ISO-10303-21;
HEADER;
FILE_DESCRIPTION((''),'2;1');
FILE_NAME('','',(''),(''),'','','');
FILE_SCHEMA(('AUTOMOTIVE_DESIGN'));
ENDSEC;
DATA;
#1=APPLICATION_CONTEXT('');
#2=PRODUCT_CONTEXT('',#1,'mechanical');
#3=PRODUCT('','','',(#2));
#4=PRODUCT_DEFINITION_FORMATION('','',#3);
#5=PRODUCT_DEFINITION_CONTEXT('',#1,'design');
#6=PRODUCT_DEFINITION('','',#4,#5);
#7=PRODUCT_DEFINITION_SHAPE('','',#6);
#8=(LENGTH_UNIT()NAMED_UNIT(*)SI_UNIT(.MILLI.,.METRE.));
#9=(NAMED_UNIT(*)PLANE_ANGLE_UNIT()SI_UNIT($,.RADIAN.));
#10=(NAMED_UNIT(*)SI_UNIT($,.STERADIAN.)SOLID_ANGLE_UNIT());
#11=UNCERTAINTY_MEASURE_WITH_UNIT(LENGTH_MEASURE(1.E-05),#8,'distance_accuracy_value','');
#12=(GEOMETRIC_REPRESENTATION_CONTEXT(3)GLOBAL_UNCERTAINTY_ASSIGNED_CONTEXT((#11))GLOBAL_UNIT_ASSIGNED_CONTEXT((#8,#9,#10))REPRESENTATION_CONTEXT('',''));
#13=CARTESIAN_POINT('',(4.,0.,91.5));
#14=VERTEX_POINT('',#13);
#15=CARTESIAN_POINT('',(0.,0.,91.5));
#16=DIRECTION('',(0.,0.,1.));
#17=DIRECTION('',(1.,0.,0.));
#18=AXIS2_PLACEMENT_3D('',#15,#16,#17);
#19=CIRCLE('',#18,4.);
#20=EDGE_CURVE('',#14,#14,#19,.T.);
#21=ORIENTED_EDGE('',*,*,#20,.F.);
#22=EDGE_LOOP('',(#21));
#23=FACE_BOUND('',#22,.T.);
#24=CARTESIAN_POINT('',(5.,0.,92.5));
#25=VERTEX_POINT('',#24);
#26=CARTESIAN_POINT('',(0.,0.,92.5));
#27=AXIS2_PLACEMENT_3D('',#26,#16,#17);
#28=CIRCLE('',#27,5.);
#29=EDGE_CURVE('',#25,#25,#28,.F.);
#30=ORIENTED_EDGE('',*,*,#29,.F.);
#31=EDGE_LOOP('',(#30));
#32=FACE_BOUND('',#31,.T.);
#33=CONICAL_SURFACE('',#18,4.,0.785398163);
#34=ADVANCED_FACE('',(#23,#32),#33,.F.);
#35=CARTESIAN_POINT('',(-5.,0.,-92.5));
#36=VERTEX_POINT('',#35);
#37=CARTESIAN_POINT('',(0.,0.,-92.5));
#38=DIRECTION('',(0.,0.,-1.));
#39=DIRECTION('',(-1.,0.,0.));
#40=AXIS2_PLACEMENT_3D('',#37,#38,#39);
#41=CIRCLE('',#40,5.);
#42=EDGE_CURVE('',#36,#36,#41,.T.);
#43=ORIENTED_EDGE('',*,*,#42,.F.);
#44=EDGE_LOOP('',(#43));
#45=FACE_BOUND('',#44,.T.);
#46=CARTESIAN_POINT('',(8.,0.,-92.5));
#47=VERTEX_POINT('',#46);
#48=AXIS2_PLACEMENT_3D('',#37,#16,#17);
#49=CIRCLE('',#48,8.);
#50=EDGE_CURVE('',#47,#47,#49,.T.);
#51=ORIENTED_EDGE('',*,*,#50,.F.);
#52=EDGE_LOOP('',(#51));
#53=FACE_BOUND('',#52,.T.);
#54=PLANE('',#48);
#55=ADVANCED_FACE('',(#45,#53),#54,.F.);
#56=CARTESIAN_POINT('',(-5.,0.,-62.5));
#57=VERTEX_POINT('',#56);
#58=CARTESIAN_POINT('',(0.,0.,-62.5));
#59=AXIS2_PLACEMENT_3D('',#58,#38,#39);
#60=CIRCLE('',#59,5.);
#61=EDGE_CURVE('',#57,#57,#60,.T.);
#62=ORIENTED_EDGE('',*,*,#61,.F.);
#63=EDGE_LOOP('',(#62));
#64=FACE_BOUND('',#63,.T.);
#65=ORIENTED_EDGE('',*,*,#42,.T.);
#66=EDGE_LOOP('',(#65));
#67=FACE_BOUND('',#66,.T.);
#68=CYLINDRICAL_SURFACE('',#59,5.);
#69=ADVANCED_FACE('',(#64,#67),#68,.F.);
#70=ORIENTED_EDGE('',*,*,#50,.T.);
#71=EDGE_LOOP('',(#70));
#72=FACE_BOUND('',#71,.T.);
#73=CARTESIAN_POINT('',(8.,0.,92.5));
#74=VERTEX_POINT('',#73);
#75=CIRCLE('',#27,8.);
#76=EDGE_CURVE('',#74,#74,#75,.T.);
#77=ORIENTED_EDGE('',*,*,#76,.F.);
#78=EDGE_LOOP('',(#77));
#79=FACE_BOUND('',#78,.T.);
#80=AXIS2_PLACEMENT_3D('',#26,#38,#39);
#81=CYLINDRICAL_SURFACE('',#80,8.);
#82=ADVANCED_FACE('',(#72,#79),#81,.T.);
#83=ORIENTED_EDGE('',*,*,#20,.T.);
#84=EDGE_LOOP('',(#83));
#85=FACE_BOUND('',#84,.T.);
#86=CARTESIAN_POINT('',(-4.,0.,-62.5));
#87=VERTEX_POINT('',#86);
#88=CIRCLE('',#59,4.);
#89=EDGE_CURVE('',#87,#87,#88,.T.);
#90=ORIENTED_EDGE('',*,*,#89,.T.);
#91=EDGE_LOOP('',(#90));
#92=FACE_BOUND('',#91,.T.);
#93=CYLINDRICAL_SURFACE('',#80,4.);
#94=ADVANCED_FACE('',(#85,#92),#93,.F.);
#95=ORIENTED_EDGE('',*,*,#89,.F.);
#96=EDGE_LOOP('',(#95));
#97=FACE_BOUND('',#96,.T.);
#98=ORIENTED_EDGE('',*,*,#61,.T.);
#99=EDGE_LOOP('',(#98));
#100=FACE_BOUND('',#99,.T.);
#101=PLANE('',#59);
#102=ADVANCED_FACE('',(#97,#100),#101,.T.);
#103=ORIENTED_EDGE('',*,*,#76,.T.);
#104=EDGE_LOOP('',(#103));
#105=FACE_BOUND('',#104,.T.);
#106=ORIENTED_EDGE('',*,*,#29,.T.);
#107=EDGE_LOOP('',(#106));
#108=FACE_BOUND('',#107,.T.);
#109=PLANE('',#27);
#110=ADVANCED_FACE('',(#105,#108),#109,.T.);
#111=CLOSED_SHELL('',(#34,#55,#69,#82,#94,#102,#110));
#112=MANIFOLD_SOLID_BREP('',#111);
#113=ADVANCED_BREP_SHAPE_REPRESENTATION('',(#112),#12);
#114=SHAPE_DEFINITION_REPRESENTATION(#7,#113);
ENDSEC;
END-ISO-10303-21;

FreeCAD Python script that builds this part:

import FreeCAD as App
import Part
import Sketcher

V = App.Vector
Q = App.Units.Quantity


def edges_at(feature, points):
    """Names of the edges that pass closest to the given points."""
    edges = feature.Shape.Edges
    near = lambda p: min(range(len(edges)), key=lambda i: edges[i].distToShape(Part.Vertex(*p))[0])
    return sorted({f"Edge{near(p) + 1}" for p in points})

doc = App.newDocument("Part")
params = doc.addObject("Spreadsheet::Sheet", "Params")
for row, (alias, value) in enumerate([
    ("sketch1_diameter", "16 mm"),
    ("sketch1_diameter2", "8 mm"),
    ("pad1_length", "185 mm"),
    ("sketch2_diameter", "10 mm"),
    ("pocket1_length", "30 mm"),
    ("chamfer_size", "1 mm"),
], start=1):
    params.set(f"A{row}", alias)
    params.set(f"B{row}", "=" + value)
    params.setAlias(f"B{row}", alias)

body = doc.addObject("PartDesign::Body", "Body")

# Sketch on XY plane
sketch1 = doc.addObject("Sketcher::SketchObject", "Sketch")
body.addObject(sketch1)
sketch1.AttachmentSupport = (doc.XY_Plane, [""])
sketch1.MapMode = "FlatFace"
sketch1.addGeometry(Part.Circle(V(0, 0, 0), V(0, 0, 1), 8), False)
sketch1.addGeometry(Part.Circle(V(0, 0, 0), V(0, 0, 1), 4), False)
sketch1.addConstraint(Sketcher.Constraint("Coincident", 0, 3, -1, 1))
sketch1.addConstraint(Sketcher.Constraint("Coincident", 1, 3, -1, 1))
sketch1.addConstraint(Sketcher.Constraint("Diameter", 0, Q("16 mm")))
sketch1.addConstraint(Sketcher.Constraint("Diameter", 1, Q("8 mm")))
sketch1.setExpression("Constraints[2]", "Params.sketch1_diameter")
sketch1.setExpression("Constraints[3]", "Params.sketch1_diameter2")
pad1 = doc.addObject("PartDesign::Pad", "Pad")
body.addObject(pad1)
pad1.Profile = sketch1
pad1.setExpression("Length", "Params.pad1_length")
pad1.Midplane = True

# Sketch on XY plane
sketch2 = doc.addObject("Sketcher::SketchObject", "Sketch001")
body.addObject(sketch2)
sketch2.AttachmentSupport = (doc.XY_Plane, [""])
sketch2.MapMode = "FlatFace"
sketch2.AttachmentOffset = App.Placement(V(0, 0, -92.5), App.Rotation())
sketch2.addGeometry(Part.Circle(V(0, 0, 0), V(0, 0, 1), 5), False)
sketch2.addConstraint(Sketcher.Constraint("Coincident", 0, 3, -1, 1))
sketch2.addConstraint(Sketcher.Constraint("Diameter", 0, Q("10 mm")))
sketch2.setExpression("Constraints[1]", "Params.sketch2_diameter")
pocket1 = doc.addObject("PartDesign::Pocket", "Pocket")
body.addObject(pocket1)
pocket1.Profile = sketch2
pocket1.setExpression("Length", "Params.pocket1_length")
pocket1.Reversed = True
doc.recompute()

chamfer = doc.addObject("PartDesign::Chamfer", "Chamfer")
body.addObject(chamfer)
chamfer.Base = (pocket1, edges_at(pocket1, [(-4, 0, 92.5)]))
chamfer.setExpression("Size", "Params.chamfer_size")

doc.recompute()
